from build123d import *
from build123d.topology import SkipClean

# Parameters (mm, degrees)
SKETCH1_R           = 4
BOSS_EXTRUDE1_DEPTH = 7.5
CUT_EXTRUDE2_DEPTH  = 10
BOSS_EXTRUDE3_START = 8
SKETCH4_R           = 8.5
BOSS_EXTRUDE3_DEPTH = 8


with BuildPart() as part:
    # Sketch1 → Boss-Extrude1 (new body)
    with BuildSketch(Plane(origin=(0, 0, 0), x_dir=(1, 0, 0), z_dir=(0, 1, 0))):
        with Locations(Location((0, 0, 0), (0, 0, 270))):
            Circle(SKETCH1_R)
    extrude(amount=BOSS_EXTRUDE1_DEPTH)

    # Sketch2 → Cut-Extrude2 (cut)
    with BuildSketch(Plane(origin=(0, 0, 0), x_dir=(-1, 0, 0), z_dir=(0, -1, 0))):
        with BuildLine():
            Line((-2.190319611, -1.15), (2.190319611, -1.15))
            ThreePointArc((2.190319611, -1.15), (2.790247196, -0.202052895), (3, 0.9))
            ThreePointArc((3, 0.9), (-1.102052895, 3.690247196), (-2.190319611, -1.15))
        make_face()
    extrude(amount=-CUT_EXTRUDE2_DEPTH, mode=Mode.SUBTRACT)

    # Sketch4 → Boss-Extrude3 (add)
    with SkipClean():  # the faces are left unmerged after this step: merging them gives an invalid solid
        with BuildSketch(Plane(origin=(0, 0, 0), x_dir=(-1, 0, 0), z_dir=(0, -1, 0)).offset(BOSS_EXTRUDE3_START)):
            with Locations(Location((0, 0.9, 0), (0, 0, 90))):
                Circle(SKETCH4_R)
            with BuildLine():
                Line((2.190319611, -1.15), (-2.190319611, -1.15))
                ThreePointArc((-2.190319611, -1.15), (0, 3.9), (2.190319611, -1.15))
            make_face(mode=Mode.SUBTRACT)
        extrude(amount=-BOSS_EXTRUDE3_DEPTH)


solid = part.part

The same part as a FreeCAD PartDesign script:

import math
import FreeCAD as App
import Part
import Sketcher
from FreeCAD import Vector
Q = App.Units.Quantity

doc = App.newDocument("Part")
body = doc.addObject("PartDesign::Body", "Body")

sketch1 = body.newObject("Sketcher::SketchObject", "Sketch")
sketch1.AttachmentSupport = (doc.getObject("XZ_Plane"), [""])
sketch1.MapMode = "FlatFace"
sketch1.addGeometry(Part.Circle(Vector(0, 0, 0), Vector(0, 0, 1), 4), False)
sketch1.addConstraint(Sketcher.Constraint("Coincident", 0, 3, -1, 1))
sketch1.addConstraint(Sketcher.Constraint("Diameter", 0, Q("8 mm")))
pad1 = body.newObject("PartDesign::Pad", "Pad")
pad1.Profile = sketch1
pad1.Length = 7.5
pad1.Reversed = True

sketch2 = body.newObject("Sketcher::SketchObject", "Sketch001")
sketch2.AttachmentSupport = (doc.getObject("XZ_Plane"), [""])
sketch2.MapMode = "FlatFace"
sketch2.addGeometry(Part.LineSegment(Vector(2.19032, 1.15, 0), Vector(-2.19032, 1.15, 0)), False)
sketch2.addGeometry(Part.ArcOfCircle(Part.Circle(Vector(0, -0.9, 0), Vector(0, 0, 1), 3), math.radians(136.895326), math.radians(180)), False)
sketch2.addGeometry(Part.ArcOfCircle(Part.Circle(Vector(0, -0.9, 0), Vector(0, 0, 1), 3), math.radians(180), math.radians(403.104674)), False)
sketch2.addConstraint(Sketcher.Constraint("Coincident", 0, 2, 1, 1))
sketch2.addConstraint(Sketcher.Constraint("Tangent", 1, 2, 2, 1))
sketch2.addConstraint(Sketcher.Constraint("Coincident", 2, 2, 0, 1))
sketch2.addConstraint(Sketcher.Constraint("Horizontal", 0))
sketch2.addConstraint(Sketcher.Constraint("Equal", 1, 2))
sketch2.addConstraint(Sketcher.Constraint("PointOnObject", 1, 3, -2))
sketch2.addConstraint(Sketcher.Constraint("Horizontal", 2, 3, 1, 2))
sketch2.addConstraint(Sketcher.Constraint("Radius", 1, Q("3 mm")))
sketch2.addConstraint(Sketcher.Constraint("DistanceY", 1, 3, -1, 1, Q("0.9 mm")))
sketch2.addConstraint(Sketcher.Constraint("DistanceY", -1, 1, 0, 2, Q("1.15 mm")))
pocket1 = body.newObject("PartDesign::Pocket", "Pocket")
pocket1.Profile = sketch2
pocket1.Length = 10

sketch3 = body.newObject("Sketcher::SketchObject", "Sketch002")
sketch3.AttachmentSupport = (doc.getObject("XZ_Plane"), [""])
sketch3.MapMode = "FlatFace"
sketch3.AttachmentOffset = App.Placement(Vector(0, 0, 8), App.Rotation())
sketch3.addGeometry(Part.Circle(Vector(0, -0.9, 0), Vector(0, 0, 1), 8.5), False)
sketch3.addGeometry(Part.ArcOfCircle(Part.Circle(Vector(0, -0.9, 0), Vector(0, 0, 1), 3), math.radians(136.895326), math.radians(403.104674)), False)
sketch3.addGeometry(Part.LineSegment(Vector(-2.19032, 1.15, 0), Vector(2.19032, 1.15, 0)), False)
sketch3.addConstraint(Sketcher.Constraint("Coincident", 1, 1, 2, 1))
sketch3.addConstraint(Sketcher.Constraint("Coincident", 2, 2, 1, 2))
sketch3.addConstraint(Sketcher.Constraint("Horizontal", 2))
sketch3.addConstraint(Sketcher.Constraint("Coincident", 1, 3, 0, 3))
sketch3.addConstraint(Sketcher.Constraint("PointOnObject", 0, 3, -2))
sketch3.addConstraint(Sketcher.Constraint("Diameter", 0, Q("17 mm")))
sketch3.addConstraint(Sketcher.Constraint("Radius", 1, Q("3 mm")))
sketch3.addConstraint(Sketcher.Constraint("DistanceY", 0, 3, -1, 1, Q("0.9 mm")))
sketch3.addConstraint(Sketcher.Constraint("DistanceY", -1, 1, 1, 1, Q("1.15 mm")))
pad2 = body.newObject("PartDesign::Pad", "Pad001")
pad2.Profile = sketch3
pad2.Length = 8
pad2.Reversed = True

doc.recompute()
